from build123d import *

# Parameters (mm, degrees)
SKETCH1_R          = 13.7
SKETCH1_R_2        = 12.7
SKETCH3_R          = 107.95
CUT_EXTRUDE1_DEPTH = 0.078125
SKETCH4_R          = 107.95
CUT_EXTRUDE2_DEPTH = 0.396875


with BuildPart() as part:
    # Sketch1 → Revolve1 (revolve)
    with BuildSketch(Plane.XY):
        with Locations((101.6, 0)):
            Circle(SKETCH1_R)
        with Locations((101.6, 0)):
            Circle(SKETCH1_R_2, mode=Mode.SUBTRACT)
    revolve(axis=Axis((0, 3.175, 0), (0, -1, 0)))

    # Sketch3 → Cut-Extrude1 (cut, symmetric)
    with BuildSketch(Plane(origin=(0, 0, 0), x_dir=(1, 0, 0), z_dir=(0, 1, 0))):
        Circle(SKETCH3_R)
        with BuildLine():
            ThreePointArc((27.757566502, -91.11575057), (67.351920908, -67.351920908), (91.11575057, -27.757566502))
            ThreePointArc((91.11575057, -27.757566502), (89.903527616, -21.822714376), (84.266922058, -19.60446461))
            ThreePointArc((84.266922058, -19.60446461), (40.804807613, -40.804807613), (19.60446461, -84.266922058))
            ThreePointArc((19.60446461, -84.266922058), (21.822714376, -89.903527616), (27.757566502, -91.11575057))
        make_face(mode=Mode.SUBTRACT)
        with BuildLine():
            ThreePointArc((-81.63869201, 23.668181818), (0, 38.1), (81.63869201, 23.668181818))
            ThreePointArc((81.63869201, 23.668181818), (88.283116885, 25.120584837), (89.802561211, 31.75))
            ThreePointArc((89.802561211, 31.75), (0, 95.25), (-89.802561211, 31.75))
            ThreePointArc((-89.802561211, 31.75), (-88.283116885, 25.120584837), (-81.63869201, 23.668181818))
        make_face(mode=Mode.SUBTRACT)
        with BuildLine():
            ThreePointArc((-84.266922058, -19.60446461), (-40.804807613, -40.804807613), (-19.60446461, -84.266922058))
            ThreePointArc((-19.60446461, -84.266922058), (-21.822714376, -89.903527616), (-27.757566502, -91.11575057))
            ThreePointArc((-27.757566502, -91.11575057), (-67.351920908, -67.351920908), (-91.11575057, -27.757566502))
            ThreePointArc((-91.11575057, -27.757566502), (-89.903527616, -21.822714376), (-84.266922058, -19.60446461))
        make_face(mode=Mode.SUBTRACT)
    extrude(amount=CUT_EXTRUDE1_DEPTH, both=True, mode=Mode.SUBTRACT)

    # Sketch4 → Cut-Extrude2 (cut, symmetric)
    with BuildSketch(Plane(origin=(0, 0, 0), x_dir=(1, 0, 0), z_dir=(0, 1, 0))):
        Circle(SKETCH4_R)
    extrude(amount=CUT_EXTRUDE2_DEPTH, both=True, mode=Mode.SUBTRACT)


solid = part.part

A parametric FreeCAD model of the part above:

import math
import FreeCAD as App
import Part
import Sketcher
from FreeCAD import Vector
Q = App.Units.Quantity

doc = App.newDocument("Part")
params = doc.addObject("Spreadsheet::Sheet", "Params")
for row, (alias, value) in enumerate([
    ("sketch1_diameter", "1 in"),
    ("revolution_angle", "360 deg"),
    ("sketch2_diameter", "8.5 in"),
    ("sketch2_radius", "0.25 in"),
    ("sketch2_radius2", "3.75 in"),
    ("sketch2_radius3", "9.375 in"),
    ("pocket1_length", "0.15625 mm"),
    ("sketch3_diameter", "8.5 in"),
    ("pocket2_length", "0.03125 in"),
], start=1):
    params.set(f"A{row}", alias)
    params.set(f"B{row}", "=" + value)
    params.setAlias(f"B{row}", alias)

body = doc.addObject("PartDesign::Body", "Body")

# Sketch on XY plane
sketch1 = body.newObject("Sketcher::SketchObject", "Sketch")
sketch1.AttachmentSupport = (doc.getObject("XY_Plane"), [""])
sketch1.MapMode = "FlatFace"
sketch1.addGeometry([
    Part.Circle(Vector(102, 0, 0), Vector(0, 0, 1), 14),
    Part.Circle(Vector(102, 0, 0), Vector(0, 0, 1), 13),
], False)
sketch1.addConstraint([
    Sketcher.Constraint("Coincident", 1, 3, 0, 3),
    Sketcher.Constraint("PointOnObject", 0, 3, -1),
    Sketcher.Constraint("Diameter", 1, Q("1 in")),
    Sketcher.Constraint("DistanceX", -1, 1, 0, 3, Q("4 in")),
    Sketcher.Constraint("Diameter", 0, 27.4),
])
sketch1.setExpression("Constraints[2]", "Params.sketch1_diameter")
revolution = body.newObject("PartDesign::Revolution", "Revolution")
revolution.Profile = sketch1
revolution.ReferenceAxis = (sketch1, ["V_Axis"])
revolution.setExpression("Angle", "Params.revolution_angle")

# Sketch on XZ plane
sketch2 = body.newObject("Sketcher::SketchObject", "Sketch001")
sketch2.AttachmentSupport = (doc.getObject("XZ_Plane"), [""])
sketch2.MapMode = "FlatFace"
sketch2.addGeometry([
    Part.Circle(Vector(0, 0, 0), Vector(0, 0, 1), 108),  # 0
    Part.ArcOfCircle(Part.Circle(Vector(-85, 26, 0), Vector(0, 0, 1), 6), math.radians(163), math.radians(277)),  # 1
    Part.ArcOfCircle(Part.Circle(Vector(-93, 93, 0), Vector(0, 0, 1), 74), math.radians(-83), math.radians(-7)),  # 2
    Part.ArcOfCircle(Part.Circle(Vector(-26, 85, 0), Vector(0, 0, 1), 6), math.radians(-7), math.radians(107)),  # 3
    Part.ArcOfCircle(Part.Circle(Vector(0, 0, 0), Vector(0, 0, 1), 95), math.radians(107), math.radians(163)),  # 4
    Part.ArcOfCircle(Part.Circle(Vector(0, 0, 0), Vector(0, 0, 1), 95), math.radians(17), math.radians(73)),  # 5
    Part.ArcOfCircle(Part.Circle(Vector(26, 85, 0), Vector(0, 0, 1), 6), math.radians(73), math.radians(187)),  # 6
    Part.ArcOfCircle(Part.Circle(Vector(93, 93, 0), Vector(0, 0, 1), 74), math.radians(-173), math.radians(-97)),  # 7
    Part.ArcOfCircle(Part.Circle(Vector(85, 26, 0), Vector(0, 0, 1), 6), math.radians(-97), math.radians(17)),  # 8
    Part.ArcOfCircle(Part.Circle(Vector(0, 200, 0), Vector(0, 0, 1), 238), math.radians(-110), math.radians(-70)),  # 9
    Part.ArcOfCircle(Part.Circle(Vector(-84, -30, 0), Vector(0, 0, 1), 6), math.radians(70), math.radians(199)),  # 10
    Part.ArcOfCircle(Part.Circle(Vector(0, 0, 0), Vector(0, 0, 1), 95), math.radians(-161), math.radians(-19)),  # 11
    Part.ArcOfCircle(Part.Circle(Vector(84, -30, 0), Vector(0, 0, 1), 6), math.radians(-19), math.radians(110)),  # 12
], False)
sketch2.addConstraint([
    Sketcher.Constraint("Tangent", 1, 2, 2, 1),
    Sketcher.Constraint("Tangent", 2, 2, 3, 1),
    Sketcher.Constraint("Tangent", 3, 2, 4, 1),
    Sketcher.Constraint("Tangent", 4, 2, 1, 1),
    Sketcher.Constraint("Tangent", 5, 2, 6, 1),
    Sketcher.Constraint("Tangent", 6, 2, 7, 1),
    Sketcher.Constraint("Tangent", 7, 2, 8, 1),
    Sketcher.Constraint("Tangent", 8, 2, 5, 1),
    Sketcher.Constraint("Tangent", 9, 1, 10, 1),
    Sketcher.Constraint("Tangent", 10, 2, 11, 1),
    Sketcher.Constraint("Tangent", 11, 2, 12, 1),
    Sketcher.Constraint("Tangent", 12, 2, 9, 2),
    Sketcher.Constraint("Coincident", 0, 3, -1, 1),
    Sketcher.Constraint("Coincident", 4, 3, -1, 1),
    Sketcher.Constraint("Coincident", 5, 3, -1, 1),
    Sketcher.Constraint("Coincident", 11, 3, -1, 1),
    Sketcher.Constraint("Equal", 1, 3),
    Sketcher.Constraint("Equal", 4, 5),
    Sketcher.Constraint("Equal", 3, 6),
    Sketcher.Constraint("Equal", 2, 7),
    Sketcher.Constraint("Equal", 6, 8),
    Sketcher.Constraint("Equal", 8, 10),
    Sketcher.Constraint("Equal", 5, 11),
    Sketcher.Constraint("Equal", 10, 12),
    Sketcher.Constraint("Symmetric", 2, 3, 7, 3, -2),
    Sketcher.Constraint("PointOnObject", 9, 3, -2),
    Sketcher.Constraint("Diameter", 0, Q("8.5 in")),
    Sketcher.Constraint("Radius", 1, Q("0.25 in")),
    Sketcher.Constraint("Radius", 4, Q("3.75 in")),
    Sketcher.Constraint("Radius", 9, Q("9.375 in")),
    Sketcher.Constraint("DistanceY", 10, 2, -1, 1, Q("1.25 in")),
    Sketcher.Constraint("Radius", 2, 74.275559),
    Sketcher.Constraint("DistanceX", 1, 2, 10, 3, 0.451198),
    Sketcher.Constraint("DistanceX", 3, 2, 2, 2, 8.153102),
])
sketch2.setExpression("Constraints[26]", "Params.sketch2_diameter")
sketch2.setExpression("Constraints[27]", "Params.sketch2_radius")
sketch2.setExpression("Constraints[28]", "Params.sketch2_radius2")
sketch2.setExpression("Constraints[29]", "Params.sketch2_radius3")
pocket1 = body.newObject("PartDesign::Pocket", "Pocket")
pocket1.Profile = sketch2
pocket1.setExpression("Length", "Params.pocket1_length")
pocket1.Midplane = True

# Sketch on XZ plane
sketch3 = body.newObject("Sketcher::SketchObject", "Sketch002")
sketch3.AttachmentSupport = (doc.getObject("XZ_Plane"), [""])
sketch3.MapMode = "FlatFace"
sketch3.addGeometry(Part.Circle(Vector(0, 0, 0), Vector(0, 0, 1), 108), False)
sketch3.addConstraint([
    Sketcher.Constraint("Coincident", 0, 3, -1, 1),
    Sketcher.Constraint("Diameter", 0, Q("8.5 in")),
])
sketch3.setExpression("Constraints[1]", "Params.sketch3_diameter")
pocket2 = body.newObject("PartDesign::Pocket", "Pocket001")
pocket2.Profile = sketch3
pocket2.setExpression("Length", "Params.pocket2_length")
pocket2.Midplane = True

doc.recompute()
